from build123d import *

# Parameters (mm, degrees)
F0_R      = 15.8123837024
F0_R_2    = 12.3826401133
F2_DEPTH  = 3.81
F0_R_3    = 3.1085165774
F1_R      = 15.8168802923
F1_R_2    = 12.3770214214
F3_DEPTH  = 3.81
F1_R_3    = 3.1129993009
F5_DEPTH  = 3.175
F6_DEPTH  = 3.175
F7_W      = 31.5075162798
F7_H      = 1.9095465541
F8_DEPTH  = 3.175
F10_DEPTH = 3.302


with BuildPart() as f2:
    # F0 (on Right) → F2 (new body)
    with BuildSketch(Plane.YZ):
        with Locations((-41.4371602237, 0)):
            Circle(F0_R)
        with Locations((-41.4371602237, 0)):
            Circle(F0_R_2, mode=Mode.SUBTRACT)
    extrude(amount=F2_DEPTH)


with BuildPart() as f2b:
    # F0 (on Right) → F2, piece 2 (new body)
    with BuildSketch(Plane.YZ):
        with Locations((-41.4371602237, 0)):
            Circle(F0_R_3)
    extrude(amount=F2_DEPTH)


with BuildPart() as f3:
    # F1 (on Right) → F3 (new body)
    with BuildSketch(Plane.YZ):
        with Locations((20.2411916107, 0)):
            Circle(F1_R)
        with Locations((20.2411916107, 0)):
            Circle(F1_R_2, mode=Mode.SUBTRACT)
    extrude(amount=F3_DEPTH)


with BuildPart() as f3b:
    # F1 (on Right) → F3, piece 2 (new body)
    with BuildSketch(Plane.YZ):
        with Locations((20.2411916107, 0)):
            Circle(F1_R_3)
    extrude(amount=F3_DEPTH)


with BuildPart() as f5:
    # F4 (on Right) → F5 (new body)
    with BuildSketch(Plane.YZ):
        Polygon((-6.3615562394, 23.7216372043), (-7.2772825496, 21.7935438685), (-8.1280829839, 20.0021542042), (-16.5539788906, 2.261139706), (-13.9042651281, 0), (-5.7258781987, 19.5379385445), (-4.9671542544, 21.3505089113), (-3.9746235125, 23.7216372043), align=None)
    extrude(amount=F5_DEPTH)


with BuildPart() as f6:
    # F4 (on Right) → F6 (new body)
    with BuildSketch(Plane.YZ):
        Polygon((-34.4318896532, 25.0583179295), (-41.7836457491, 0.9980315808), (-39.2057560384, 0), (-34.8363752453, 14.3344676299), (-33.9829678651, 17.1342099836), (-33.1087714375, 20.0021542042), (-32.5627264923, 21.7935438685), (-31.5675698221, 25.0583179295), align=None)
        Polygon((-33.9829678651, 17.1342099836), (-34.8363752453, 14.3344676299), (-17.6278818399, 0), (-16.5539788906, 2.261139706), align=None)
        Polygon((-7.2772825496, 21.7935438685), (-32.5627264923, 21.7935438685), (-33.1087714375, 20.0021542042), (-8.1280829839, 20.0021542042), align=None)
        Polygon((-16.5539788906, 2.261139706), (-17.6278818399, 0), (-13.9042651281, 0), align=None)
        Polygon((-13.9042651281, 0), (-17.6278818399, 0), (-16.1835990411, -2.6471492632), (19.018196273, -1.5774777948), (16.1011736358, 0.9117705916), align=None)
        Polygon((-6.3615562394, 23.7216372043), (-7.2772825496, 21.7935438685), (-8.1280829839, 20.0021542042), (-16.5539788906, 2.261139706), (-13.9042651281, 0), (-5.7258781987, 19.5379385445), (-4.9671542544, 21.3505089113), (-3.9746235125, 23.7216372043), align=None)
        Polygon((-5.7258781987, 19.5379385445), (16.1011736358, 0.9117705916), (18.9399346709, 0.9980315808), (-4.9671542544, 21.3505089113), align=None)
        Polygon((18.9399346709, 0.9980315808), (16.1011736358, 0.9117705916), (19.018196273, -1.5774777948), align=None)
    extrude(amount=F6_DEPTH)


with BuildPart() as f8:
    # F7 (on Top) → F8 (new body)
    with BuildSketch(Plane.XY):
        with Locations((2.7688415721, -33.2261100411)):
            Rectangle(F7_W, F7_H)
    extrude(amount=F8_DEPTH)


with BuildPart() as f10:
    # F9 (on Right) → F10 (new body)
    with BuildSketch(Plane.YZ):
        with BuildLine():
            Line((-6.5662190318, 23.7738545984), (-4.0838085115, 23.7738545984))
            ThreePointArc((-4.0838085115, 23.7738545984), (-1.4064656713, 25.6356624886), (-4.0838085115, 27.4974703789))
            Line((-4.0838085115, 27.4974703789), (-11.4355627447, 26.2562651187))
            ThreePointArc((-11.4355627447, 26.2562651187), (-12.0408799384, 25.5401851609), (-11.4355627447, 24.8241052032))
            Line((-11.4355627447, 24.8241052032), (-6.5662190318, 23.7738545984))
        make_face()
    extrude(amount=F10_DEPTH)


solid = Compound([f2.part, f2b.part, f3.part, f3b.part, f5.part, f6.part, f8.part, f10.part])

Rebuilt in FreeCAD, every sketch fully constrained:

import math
import FreeCAD as App
import Part
import Sketcher
Q = App.Units.Quantity

doc = App.newDocument("Part")
body = doc.addObject("PartDesign::Body", "Body")

# Sketch on YZ plane
sketch1 = body.newObject("Sketcher::SketchObject", "Sketch")
sketch1.AttachmentSupport = (doc.getObject("YZ_Plane"), [""])
sketch1.MapMode = "FlatFace"
sketch1.addGeometry([
    Part.Circle(App.Vector(-41, 0, 0), App.Vector(0, 0, 1), 16),
    Part.Circle(App.Vector(-41, 0, 0), App.Vector(0, 0, 1), 12),
], False)
sketch1.addConstraint([
    Sketcher.Constraint("Coincident", 1, 3, 0, 3),
    Sketcher.Constraint("PointOnObject", 0, 3, -1),
    Sketcher.Constraint("Diameter", 1, Q("24.76528 mm")),
    Sketcher.Constraint("Diameter", 0, Q("31.624767 mm")),
    Sketcher.Constraint("DistanceX", 0, 3, -1, 1, Q("41.43716 mm")),
])
pad1 = body.newObject("PartDesign::Pad", "Pad")
pad1.Profile = sketch1
pad1.Length = Q("0.15 in")
body2 = doc.addObject("PartDesign::Body", "Body001")

# Sketch on YZ plane
sketch2 = body2.newObject("Sketcher::SketchObject", "Sketch001")
sketch2.AttachmentSupport = (doc.getObject("YZ_Plane001"), [""])
sketch2.MapMode = "FlatFace"
sketch2.addGeometry(Part.Circle(App.Vector(-41.4, 0, 0), App.Vector(0, 0, 1), 3.1), False)
sketch2.addConstraint([
    Sketcher.Constraint("PointOnObject", 0, 3, -1),
    Sketcher.Constraint("Diameter", 0, Q("6.217033 mm")),
    Sketcher.Constraint("DistanceX", 0, 3, -1, 1, Q("41.43716 mm")),
])
pad2 = body2.newObject("PartDesign::Pad", "Pad001")
pad2.Profile = sketch2
pad2.Length = Q("0.15 in")
body3 = doc.addObject("PartDesign::Body", "Body002")

# Sketch on YZ plane
sketch3 = body3.newObject("Sketcher::SketchObject", "Sketch002")
sketch3.AttachmentSupport = (doc.getObject("YZ_Plane002"), [""])
sketch3.MapMode = "FlatFace"
sketch3.addGeometry([
    Part.Circle(App.Vector(20, 0, 0), App.Vector(0, 0, 1), 16),
    Part.Circle(App.Vector(20, 0, 0), App.Vector(0, 0, 1), 12),
], False)
sketch3.addConstraint([
    Sketcher.Constraint("Coincident", 1, 3, 0, 3),
    Sketcher.Constraint("PointOnObject", 0, 3, -1),
    Sketcher.Constraint("Diameter", 0, Q("31.633761 mm")),
    Sketcher.Constraint("Diameter", 1, Q("24.754043 mm")),
    Sketcher.Constraint("DistanceX", -1, 1, 0, 3, Q("20.241192 mm")),
])
pad3 = body3.newObject("PartDesign::Pad", "Pad002")
pad3.Profile = sketch3
pad3.Length = Q("0.15 in")
body4 = doc.addObject("PartDesign::Body", "Body003")

# Sketch on YZ plane
sketch4 = body4.newObject("Sketcher::SketchObject", "Sketch003")
sketch4.AttachmentSupport = (doc.getObject("YZ_Plane003"), [""])
sketch4.MapMode = "FlatFace"
sketch4.addGeometry(Part.Circle(App.Vector(20.2, 0, 0), App.Vector(0, 0, 1), 3.1), False)
sketch4.addConstraint([
    Sketcher.Constraint("PointOnObject", 0, 3, -1),
    Sketcher.Constraint("Diameter", 0, Q("6.225999 mm")),
    Sketcher.Constraint("DistanceX", -1, 1, 0, 3, Q("20.241192 mm")),
])
pad4 = body4.newObject("PartDesign::Pad", "Pad003")
pad4.Profile = sketch4
pad4.Length = Q("0.15 in")
body5 = doc.addObject("PartDesign::Body", "Body004")

# Sketch on YZ plane
sketch5 = body5.newObject("Sketcher::SketchObject", "Sketch004")
sketch5.AttachmentSupport = (doc.getObject("YZ_Plane004"), [""])
sketch5.MapMode = "FlatFace"
sketch5.addGeometry([
    Part.LineSegment(App.Vector(-6.4, 23.7, 0), App.Vector(-7.3, 21.8, 0)),  # 0
    Part.LineSegment(App.Vector(-7.3, 21.8, 0), App.Vector(-8.1, 20, 0)),  # 1
    Part.LineSegment(App.Vector(-8.1, 20, 0), App.Vector(-16.6, 2.3, 0)),  # 2
    Part.LineSegment(App.Vector(-16.6, 2.3, 0), App.Vector(-13.9, 0, 0)),  # 3
    Part.LineSegment(App.Vector(-13.9, 0, 0), App.Vector(-5.7, 19.5, 0)),  # 4
    Part.LineSegment(App.Vector(-5.7, 19.5, 0), App.Vector(-4, 23.7, 0)),  # 5
    Part.LineSegment(App.Vector(-4, 23.7, 0), App.Vector(-6.4, 23.7, 0)),  # 6
], False)
sketch5.addConstraint([
    Sketcher.Constraint("Coincident", 0, 2, 1, 1),
    Sketcher.Constraint("Coincident", 1, 2, 2, 1),
    Sketcher.Constraint("Coincident", 2, 2, 3, 1),
    Sketcher.Constraint("Coincident", 3, 2, 4, 1),
    Sketcher.Constraint("Coincident", 4, 2, 5, 1),
    Sketcher.Constraint("Coincident", 5, 2, 6, 1),
    Sketcher.Constraint("Coincident", 6, 2, 0, 1),
    Sketcher.Constraint("Horizontal", 6),
    Sketcher.Constraint("PointOnObject", 3, 2, -1),
    Sketcher.Constraint("Parallel", 0, 1),
    Sketcher.Constraint("Parallel", 1, 2),
    Sketcher.Constraint("Parallel", 4, 5),
    Sketcher.Constraint("Distance", 0, Q("2.134502 mm")),
    Sketcher.Constraint("DistanceX", 1, 2, 0, 2, Q("0.8508 mm")),
    Sketcher.Constraint("DistanceX", 2, 2, 4, 2, Q("10.828101 mm")),
    Sketcher.Constraint("DistanceY", 2, 2, 4, 2, Q("17.276799 mm")),
    Sketcher.Constraint("DistanceY", 4, 2, 5, 2, Q("4.183699 mm")),
    Sketcher.Constraint("Distance", 3, Q("3.483351 mm")),
    Sketcher.Constraint("Distance", 5, Q("4.535441 mm")),
    Sketcher.Constraint("DistanceX", 6, 2, 6, 1, Q("2.386933 mm")),
    Sketcher.Constraint("DistanceX", 2, 2, -1, 1, Q("16.553979 mm")),
])
pad5 = body5.newObject("PartDesign::Pad", "Pad004")
pad5.Profile = sketch5
pad5.Length = Q("0.125 in")
body6 = doc.addObject("PartDesign::Body", "Body005")

# Sketch on YZ plane
sketch6 = body6.newObject("Sketcher::SketchObject", "Sketch005")
sketch6.AttachmentSupport = (doc.getObject("YZ_Plane005"), [""])
sketch6.MapMode = "FlatFace"
sketch6.addGeometry([
    Part.LineSegment(App.Vector(-16.183599, -2.647149, 0), App.Vector(19.018196, -1.577478, 0)),  # 0
    Part.LineSegment(App.Vector(19.018196, -1.577478, 0), App.Vector(18.939935, 0.998032, 0)),  # 1
    Part.LineSegment(App.Vector(18.939935, 0.998032, 0), App.Vector(-4.967154, 21.350509, 0)),  # 2
    Part.LineSegment(App.Vector(-4.967154, 21.350509, 0), App.Vector(-3.974624, 23.721637, 0)),  # 3
    Part.LineSegment(App.Vector(-3.974624, 23.721637, 0), App.Vector(-6.361556, 23.721637, 0)),  # 4
    Part.LineSegment(App.Vector(-6.361556, 23.721637, 0), App.Vector(-7.277283, 21.793544, 0)),  # 5
    Part.LineSegment(App.Vector(-7.277283, 21.793544, 0), App.Vector(-32.562726, 21.793544, 0)),  # 6
    Part.LineSegment(App.Vector(-32.562726, 21.793544, 0), App.Vector(-31.56757, 25.058318, 0)),  # 7
    Part.LineSegment(App.Vector(-31.56757, 25.058318, 0), App.Vector(-34.43189, 25.058318, 0)),  # 8
    Part.LineSegment(App.Vector(-34.43189, 25.058318, 0), App.Vector(-41.783646, 0.998032, 0)),  # 9
    Part.LineSegment(App.Vector(-41.783646, 0.998032, 0), App.Vector(-39.205756, 0, 0)),  # 10
    Part.LineSegment(App.Vector(-39.205756, 0, 0), App.Vector(-34.836375, 14.334468, 0)),  # 11
    Part.LineSegment(App.Vector(-34.836375, 14.334468, 0), App.Vector(-17.627882, 0, 0)),  # 12
    Part.LineSegment(App.Vector(-17.627882, 0, 0), App.Vector(-16.183599, -2.647149, 0)),  # 13
    Part.LineSegment(App.Vector(-5.725878, 19.537939, 0), App.Vector(16.101174, 0.911771, 0)),  # 14
    Part.LineSegment(App.Vector(16.101174, 0.911771, 0), App.Vector(-13.904265, 0, 0)),  # 15
    Part.LineSegment(App.Vector(-13.904265, 0, 0), App.Vector(-5.725878, 19.537939, 0)),  # 16
    Part.LineSegment(App.Vector(-16.553979, 2.26114, 0), App.Vector(-33.982968, 17.13421, 0)),  # 17
    Part.LineSegment(App.Vector(-33.982968, 17.13421, 0), App.Vector(-33.108771, 20.002154, 0)),  # 18
    Part.LineSegment(App.Vector(-33.108771, 20.002154, 0), App.Vector(-8.128083, 20.002154, 0)),  # 19
    Part.LineSegment(App.Vector(-8.128083, 20.002154, 0), App.Vector(-16.553979, 2.26114, 0)),  # 20
], False)
sketch6.addConstraint([
    Sketcher.Constraint("Coincident", 0, 2, 1, 1),
    Sketcher.Constraint("Coincident", 1, 2, 2, 1),
    Sketcher.Constraint("Coincident", 2, 2, 3, 1),
    Sketcher.Constraint("Coincident", 3, 2, 4, 1),
    Sketcher.Constraint("Coincident", 4, 2, 5, 1),
    Sketcher.Constraint("Coincident", 5, 2, 6, 1),
    Sketcher.Constraint("Coincident", 6, 2, 7, 1),
    Sketcher.Constraint("Coincident", 7, 2, 8, 1),
    Sketcher.Constraint("Coincident", 8, 2, 9, 1),
    Sketcher.Constraint("Coincident", 9, 2, 10, 1),
    Sketcher.Constraint("Coincident", 10, 2, 11, 1),
    Sketcher.Constraint("Coincident", 11, 2, 12, 1),
    Sketcher.Constraint("Coincident", 12, 2, 13, 1),
    Sketcher.Constraint("Coincident", 13, 2, 0, 1),
    Sketcher.Constraint("Coincident", 14, 2, 15, 1),
    Sketcher.Constraint("Coincident", 15, 2, 16, 1),
    Sketcher.Constraint("Coincident", 16, 2, 14, 1),
    Sketcher.Constraint("Coincident", 17, 2, 18, 1),
    Sketcher.Constraint("Coincident", 18, 2, 19, 1),
    Sketcher.Constraint("Coincident", 19, 2, 20, 1),
    Sketcher.Constraint("Coincident", 20, 2, 17, 1),
    Sketcher.Constraint("Horizontal", 4),
    Sketcher.Constraint("Horizontal", 6),
    Sketcher.Constraint("Horizontal", 8),
    Sketcher.Constraint("Horizontal", 19),
    Sketcher.Constraint("PointOnObject", 10, 2, -1),
    Sketcher.Constraint("PointOnObject", 12, 2, -1),
    Sketcher.Constraint("PointOnObject", 15, 2, -1),
    Sketcher.Constraint("Distance", 3, Q("0.1012 in")),
    Sketcher.Constraint("Distance", 1, Q("2.576698 mm")),
    Sketcher.Constraint("Distance", 5, Q("2.134502 mm")),
    Sketcher.Constraint("DistanceX", 8, 2, 8, 1, Q("2.86432 mm")),
    Sketcher.Constraint("DistanceX", 19, 1, 19, 2, Q("24.980688 mm")),
    Sketcher.Constraint("DistanceX", 13, 2, -1, 1, Q("16.183599 mm")),
    Sketcher.Constraint("DistanceX", 4, 2, 2, 2, Q("1.394402 mm")),
    Sketcher.Constraint("DistanceX", 12, 2, 5, 2, Q("10.350599 mm")),
    Sketcher.Constraint("DistanceY", 16, 2, 4, 2, Q("4.183699 mm")),
    Sketcher.Constraint("DistanceX", 17, 2, 7, 2, Q("2.415398 mm")),
    Sketcher.Constraint("DistanceX", 18, 2, 7, 2, Q("1.541202 mm")),
    Sketcher.Constraint("DistanceX", 19, 2, 5, 2, Q("0.8508 mm")),
    Sketcher.Constraint("DistanceX", 20, 2, 16, 2, Q("10.828101 mm")),
    Sketcher.Constraint("DistanceY", 20, 2, 16, 2, Q("17.276799 mm")),
    Sketcher.Constraint("Distance", 2, Q("31.39701 mm")),
    Sketcher.Constraint("Distance", 10, Q("2.764341 mm")),
    Sketcher.Constraint("Distance", 11, Q("14.985608 mm")),
    Sketcher.Constraint("Distance", 13, Q("3.015519 mm")),
    Sketcher.Constraint("Distance", 14, Q("28.694151 mm")),
    Sketcher.Constraint("Distance", 15, Q("30.019288 mm")),
    Sketcher.Constraint("Distance", 18, Q("2.99822 mm")),
    Sketcher.Constraint("DistanceX", 4, 2, 4, 1, Q("2.386933 mm")),
    Sketcher.Constraint("DistanceX", 6, 2, 6, 1, Q("25.285444 mm")),
    Sketcher.Constraint("DistanceY", -1, 1, 1, 2, Q("0.998032 mm")),
    Sketcher.Constraint("DistanceY", -1, 1, 2, 2, Q("21.350509 mm")),
    Sketcher.Constraint("DistanceX", 7, 2, -1, 1, Q("31.56757 mm")),
    Sketcher.Constraint("DistanceY", -1, 1, 9, 2, Q("0.998032 mm")),
    Sketcher.Constraint("DistanceY", -1, 1, 14, 2, Q("0.911771 mm")),
    Sketcher.Constraint("DistanceX", 16, 2, -1, 1, Q("5.725878 mm")),
    Sketcher.Constraint("DistanceY", -1, 1, 17, 2, Q("17.13421 mm")),
    Sketcher.Constraint("DistanceX", 1, 2, 0, 2, Q("0.078262 mm")),
    Sketcher.Constraint("DistanceX", 5, 2, 2, 2, Q("2.310128 mm")),
    Sketcher.Constraint("DistanceY", 4, 2, 7, 2, Q("1.336681 mm")),
    Sketcher.Constraint("DistanceX", 9, 2, 6, 2, Q("9.220919 mm")),
    Sketcher.Constraint("DistanceX", 11, 2, 6, 2, Q("2.273649 mm")),
])
pad6 = body6.newObject("PartDesign::Pad", "Pad005")
pad6.Profile = sketch6
pad6.Length = Q("0.125 in")
body7 = doc.addObject("PartDesign::Body", "Body006")

# Sketch on XY plane
sketch7 = body7.newObject("Sketcher::SketchObject", "Sketch006")
sketch7.AttachmentSupport = (doc.getObject("XY_Plane006"), [""])
sketch7.MapMode = "FlatFace"
sketch7.addGeometry([
    Part.LineSegment(App.Vector(-13, -32.3, 0), App.Vector(-13, -34.2, 0)),
    Part.LineSegment(App.Vector(-13, -34.2, 0), App.Vector(18.5, -34.2, 0)),
    Part.LineSegment(App.Vector(18.5, -34.2, 0), App.Vector(18.5, -32.3, 0)),
    Part.LineSegment(App.Vector(18.5, -32.3, 0), App.Vector(-13, -32.3, 0)),
], False)
sketch7.addConstraint([
    Sketcher.Constraint("Coincident", 0, 2, 1, 1),
    Sketcher.Constraint("Coincident", 1, 2, 2, 1),
    Sketcher.Constraint("Coincident", 2, 2, 3, 1),
    Sketcher.Constraint("Coincident", 3, 2, 0, 1),
    Sketcher.Constraint("Vertical", 0),
    Sketcher.Constraint("Horizontal", 1),
    Sketcher.Constraint("Vertical", 2),
    Sketcher.Constraint("Horizontal", 3),
    Sketcher.Constraint("DistanceX", -1, 1, 1, 2, Q("18.5226 mm")),
    Sketcher.Constraint("DistanceX", 1, 1, 1, 2, Q("31.507516 mm")),
    Sketcher.Constraint("DistanceY", 0, 2, 0, 1, Q("1.909547 mm")),
    Sketcher.Constraint("DistanceY", 0, 2, -1, 1, Q("34.180883 mm")),
])
pad7 = body7.newObject("PartDesign::Pad", "Pad006")
pad7.Profile = sketch7
pad7.Length = Q("0.125 in")
body8 = doc.addObject("PartDesign::Body", "Body007")

# Sketch on YZ plane
sketch8 = body8.newObject("Sketcher::SketchObject", "Sketch007")
sketch8.AttachmentSupport = (doc.getObject("YZ_Plane007"), [""])
sketch8.MapMode = "FlatFace"
sketch8.addGeometry([
    Part.LineSegment(App.Vector(-6.6, 23.8, 0), App.Vector(-4.1, 23.8, 0)),  # 0
    Part.ArcOfCircle(Part.Circle(App.Vector(-3.4, 25.6, 0), App.Vector(0, 0, 1), 2), math.radians(-110), math.radians(110)),  # 1
    Part.LineSegment(App.Vector(-4.1, 27.5, 0), App.Vector(-11.4, 26.3, 0)),  # 2
    Part.ArcOfCircle(Part.Circle(App.Vector(-11.3, 25.5, 0), App.Vector(0, 0, 1), 0.7), math.radians(100), math.radians(260)),  # 3
    Part.LineSegment(App.Vector(-11.4, 24.8, 0), App.Vector(-6.6, 23.8, 0)),  # 4
], False)
sketch8.addConstraint([
    Sketcher.Constraint("Coincident", 0, 2, 1, 1),
    Sketcher.Constraint("Coincident", 1, 2, 2, 1),
    Sketcher.Constraint("Tangent", 2, 2, 3, 1),
    Sketcher.Constraint("Coincident", 3, 2, 4, 1),
    Sketcher.Constraint("Coincident", 4, 2, 0, 1),
    Sketcher.Constraint("Horizontal", 0),
    Sketcher.Constraint("Vertical", 0, 2, 1, 2),
    Sketcher.Constraint("Vertical", 2, 2, 3, 2),
    Sketcher.Constraint("Radius", 1, Q("1.986016 mm")),
    Sketcher.Constraint("Radius", 3, Q("0.726214 mm")),
    Sketcher.Constraint("DistanceX", 0, 1, 0, 2, Q("2.482411 mm")),
    Sketcher.Constraint("Distance", 4, Q("4.981319 mm")),
    Sketcher.Constraint("DistanceX", 0, 2, -1, 1, Q("4.083809 mm")),
    Sketcher.Constraint("DistanceY", -1, 1, 1, 2, Q("27.49747 mm")),
    Sketcher.Constraint("DistanceY", 0, 2, 3, 3, Q("1.766331 mm")),
    Sketcher.Constraint("DistanceY", 3, 3, 2, 2, Q("0.71608 mm")),
])
pad8 = body8.newObject("PartDesign::Pad", "Pad007")
pad8.Profile = sketch8
pad8.Length = Q("0.13 in")

doc.recompute()
